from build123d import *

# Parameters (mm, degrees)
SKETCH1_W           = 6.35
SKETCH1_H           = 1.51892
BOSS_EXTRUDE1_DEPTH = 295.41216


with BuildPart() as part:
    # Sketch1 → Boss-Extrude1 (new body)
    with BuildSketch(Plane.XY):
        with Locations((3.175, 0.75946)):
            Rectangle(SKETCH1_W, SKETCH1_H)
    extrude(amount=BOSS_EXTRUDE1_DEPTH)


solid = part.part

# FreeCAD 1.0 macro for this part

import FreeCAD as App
import Part
import Sketcher
Q = App.Units.Quantity


def add_polygon(sketch, points):
    """Adds a closed chain of lines whose ends are joined by coincident constraints."""
    first, n = sketch.GeometryCount, len(points)
    for a, b in zip(points, points[1:] + points[:1]):
        sketch.addGeometry(Part.LineSegment(App.Vector(*a, 0), App.Vector(*b, 0)), False)
    for i in range(n):
        sketch.addConstraint(Sketcher.Constraint("Coincident", first + i, 2, first + (i + 1) % n, 1))

doc = App.newDocument("Part")
body = doc.addObject("PartDesign::Body", "Body")

# Sketch on XY plane
sketch1 = doc.addObject("Sketcher::SketchObject", "Sketch")
body.addObject(sketch1)
sketch1.AttachmentSupport = (doc.XY_Plane, [""])
sketch1.MapMode = "FlatFace"
add_polygon(sketch1, [(0, 1.5), (0, 0), (6.3, 0), (6.3, 1.5)])  # lines 0-3
sketch1.addConstraint([
    Sketcher.Constraint("Vertical", 0),
    Sketcher.Constraint("Horizontal", 1),
    Sketcher.Constraint("Vertical", 2),
    Sketcher.Constraint("Horizontal", 3),
    Sketcher.Constraint("Coincident", 0, 2, -1, 1),
    Sketcher.Constraint("DistanceX", 1, 1, 1, 2, Q("0.25 in")),
    Sketcher.Constraint("DistanceY", 0, 2, 0, 1, Q("0.0598 in")),
])
pad1 = doc.addObject("PartDesign::Pad", "Pad")
body.addObject(pad1)
pad1.Profile = sketch1
pad1.Length = Q("11.6304 in")

doc.recompute()
